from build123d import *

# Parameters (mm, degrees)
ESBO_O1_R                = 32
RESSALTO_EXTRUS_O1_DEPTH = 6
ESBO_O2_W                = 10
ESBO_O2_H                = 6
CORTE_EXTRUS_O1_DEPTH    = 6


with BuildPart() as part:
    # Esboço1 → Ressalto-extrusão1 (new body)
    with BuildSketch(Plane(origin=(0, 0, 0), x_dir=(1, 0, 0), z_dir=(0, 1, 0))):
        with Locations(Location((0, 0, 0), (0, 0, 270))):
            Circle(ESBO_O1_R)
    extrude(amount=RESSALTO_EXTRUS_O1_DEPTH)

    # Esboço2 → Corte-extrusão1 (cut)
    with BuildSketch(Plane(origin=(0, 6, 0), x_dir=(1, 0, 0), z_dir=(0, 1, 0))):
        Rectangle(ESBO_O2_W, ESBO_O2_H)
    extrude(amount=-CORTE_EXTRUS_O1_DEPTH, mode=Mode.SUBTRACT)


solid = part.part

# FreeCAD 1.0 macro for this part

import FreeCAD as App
import Part
import Sketcher


def add_polygon(sketch, points):
    """Adds a closed chain of lines whose ends are joined by coincident constraints."""
    first, n = sketch.GeometryCount, len(points)
    for a, b in zip(points, points[1:] + points[:1]):
        sketch.addGeometry(Part.LineSegment(App.Vector(*a, 0), App.Vector(*b, 0)), False)
    for i in range(n):
        sketch.addConstraint(Sketcher.Constraint("Coincident", first + i, 2, first + (i + 1) % n, 1))

doc = App.newDocument("Part")
params = doc.addObject("Spreadsheet::Sheet", "Params")
for row, (alias, value) in enumerate([
    ("sketch1_diameter", "64 mm"),
    ("pad1_length", "6 mm"),
    ("sketch2_width", "10 mm"),
    ("sketch2_height", "6 mm"),
    ("pocket1_length", "6 mm"),
], start=1):
    params.set(f"A{row}", alias)
    params.set(f"B{row}", "=" + value)
    params.setAlias(f"B{row}", alias)

body = doc.addObject("PartDesign::Body", "Body")

# Sketch on XZ plane
sketch1 = body.newObject("Sketcher::SketchObject", "Sketch")
sketch1.AttachmentSupport = (doc.getObject("XZ_Plane"), [""])
sketch1.MapMode = "FlatFace"
sketch1.addGeometry(Part.Circle(App.Vector(0, 0, 0), App.Vector(0, 0, 1), 32), False)
sketch1.addConstraint([
    Sketcher.Constraint("Coincident", 0, 3, -1, 1),
    Sketcher.Constraint("Diameter", 0, 64.0),
])
sketch1.setExpression("Constraints[1]", "Params.sketch1_diameter")
pad1 = body.newObject("PartDesign::Pad", "Pad")
pad1.Profile = sketch1
pad1.setExpression("Length", "Params.pad1_length")
pad1.Reversed = True

# Sketch on XZ plane
sketch2 = body.newObject("Sketcher::SketchObject", "Sketch001")
sketch2.AttachmentSupport = (doc.getObject("XZ_Plane"), [""])
sketch2.MapMode = "FlatFace"
sketch2.AttachmentOffset = App.Placement(App.Vector(0, 0, -6), App.Rotation())
add_polygon(sketch2, [(-5, -3), (-5, 3), (5, 3), (5, -3)])  # lines 0-3
sketch2.addConstraint([
    Sketcher.Constraint("Vertical", 0),
    Sketcher.Constraint("Horizontal", 1),
    Sketcher.Constraint("Vertical", 2),
    Sketcher.Constraint("Horizontal", 3),
    Sketcher.Constraint("Symmetric", 0, 2, 2, 2, -1, 1),
    Sketcher.Constraint("DistanceX", 1, 1, 1, 2, 10.0),
    Sketcher.Constraint("DistanceY", 0, 1, 0, 2, 6.0),
])
sketch2.setExpression("Constraints[9]", "Params.sketch2_width")
sketch2.setExpression("Constraints[10]", "Params.sketch2_height")
pocket1 = body.newObject("PartDesign::Pocket", "Pocket")
pocket1.Profile = sketch2
pocket1.setExpression("Length", "Params.pocket1_length")
pocket1.Reversed = True

doc.recompute()
